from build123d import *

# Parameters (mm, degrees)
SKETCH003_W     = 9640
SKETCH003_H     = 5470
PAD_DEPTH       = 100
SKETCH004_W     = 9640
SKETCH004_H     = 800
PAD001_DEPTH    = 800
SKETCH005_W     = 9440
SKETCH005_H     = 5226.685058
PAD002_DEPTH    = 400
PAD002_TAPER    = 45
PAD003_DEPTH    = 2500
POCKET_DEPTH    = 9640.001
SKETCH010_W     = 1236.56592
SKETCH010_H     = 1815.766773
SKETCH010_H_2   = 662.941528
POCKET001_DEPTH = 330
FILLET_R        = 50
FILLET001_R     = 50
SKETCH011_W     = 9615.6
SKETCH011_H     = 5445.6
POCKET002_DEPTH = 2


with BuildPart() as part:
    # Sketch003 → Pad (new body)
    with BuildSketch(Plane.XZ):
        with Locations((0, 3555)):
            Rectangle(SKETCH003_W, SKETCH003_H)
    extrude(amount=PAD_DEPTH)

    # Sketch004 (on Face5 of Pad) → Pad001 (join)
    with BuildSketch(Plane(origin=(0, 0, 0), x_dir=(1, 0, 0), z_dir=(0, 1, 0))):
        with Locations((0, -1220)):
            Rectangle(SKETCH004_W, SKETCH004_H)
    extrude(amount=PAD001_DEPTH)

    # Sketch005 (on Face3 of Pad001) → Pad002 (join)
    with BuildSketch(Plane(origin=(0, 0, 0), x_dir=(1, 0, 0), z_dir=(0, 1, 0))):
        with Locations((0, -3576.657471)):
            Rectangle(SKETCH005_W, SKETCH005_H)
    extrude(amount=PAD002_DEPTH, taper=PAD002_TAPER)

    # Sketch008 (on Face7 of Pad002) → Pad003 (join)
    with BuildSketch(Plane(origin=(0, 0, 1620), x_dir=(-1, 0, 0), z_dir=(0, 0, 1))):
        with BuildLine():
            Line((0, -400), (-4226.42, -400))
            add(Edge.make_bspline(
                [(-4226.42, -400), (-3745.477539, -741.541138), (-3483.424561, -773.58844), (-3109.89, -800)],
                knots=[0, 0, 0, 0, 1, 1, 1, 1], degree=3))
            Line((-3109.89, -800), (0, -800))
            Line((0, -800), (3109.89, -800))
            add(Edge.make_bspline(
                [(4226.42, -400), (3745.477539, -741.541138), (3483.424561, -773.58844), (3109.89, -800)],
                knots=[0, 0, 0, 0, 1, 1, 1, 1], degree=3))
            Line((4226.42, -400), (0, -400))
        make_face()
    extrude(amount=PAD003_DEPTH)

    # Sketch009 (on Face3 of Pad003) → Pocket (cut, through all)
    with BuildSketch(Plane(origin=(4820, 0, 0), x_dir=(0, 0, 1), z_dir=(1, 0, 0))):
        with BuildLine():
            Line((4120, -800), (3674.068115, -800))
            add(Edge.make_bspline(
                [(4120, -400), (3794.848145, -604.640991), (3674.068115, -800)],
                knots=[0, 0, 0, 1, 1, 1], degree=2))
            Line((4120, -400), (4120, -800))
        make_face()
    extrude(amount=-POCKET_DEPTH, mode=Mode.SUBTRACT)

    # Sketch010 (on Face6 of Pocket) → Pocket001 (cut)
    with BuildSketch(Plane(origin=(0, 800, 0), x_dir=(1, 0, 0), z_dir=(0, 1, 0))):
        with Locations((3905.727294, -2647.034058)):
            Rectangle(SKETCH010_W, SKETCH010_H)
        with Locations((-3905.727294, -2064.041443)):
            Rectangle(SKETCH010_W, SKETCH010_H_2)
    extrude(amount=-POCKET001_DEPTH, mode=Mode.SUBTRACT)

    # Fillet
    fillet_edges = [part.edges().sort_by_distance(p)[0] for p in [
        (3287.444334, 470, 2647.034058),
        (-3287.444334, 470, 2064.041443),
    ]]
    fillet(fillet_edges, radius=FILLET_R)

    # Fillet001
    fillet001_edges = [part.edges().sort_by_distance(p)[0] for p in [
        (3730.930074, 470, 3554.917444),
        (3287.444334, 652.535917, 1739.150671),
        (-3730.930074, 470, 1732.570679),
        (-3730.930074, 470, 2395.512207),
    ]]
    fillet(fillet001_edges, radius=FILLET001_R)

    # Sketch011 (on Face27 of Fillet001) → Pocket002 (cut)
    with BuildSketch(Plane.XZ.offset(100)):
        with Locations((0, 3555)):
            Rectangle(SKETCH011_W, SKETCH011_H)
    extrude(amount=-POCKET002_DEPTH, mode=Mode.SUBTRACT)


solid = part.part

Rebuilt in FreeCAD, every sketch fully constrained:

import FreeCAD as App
import Part
import Sketcher
from FreeCAD import Vector


def edges_at(feature, points):
    """Names of the edges that pass closest to the given points."""
    edges = feature.Shape.Edges
    near = lambda p: min(range(len(edges)), key=lambda i: edges[i].distToShape(Part.Vertex(*p))[0])
    return sorted({f"Edge{near(p) + 1}" for p in points})

doc = App.newDocument("Part")
body = doc.addObject("PartDesign::Body", "Body")

# Sketch on XZ plane
sketch1 = body.newObject("Sketcher::SketchObject", "Sketch")
sketch1.AttachmentSupport = (doc.getObject("XZ_Plane"), [""])
sketch1.MapMode = "FlatFace"
sketch1.addGeometry([
    Part.LineSegment(Vector(-4820, 6290, 0), Vector(-4820, 820, 0)),
    Part.LineSegment(Vector(-4820, 820, 0), Vector(4820, 820, 0)),
    Part.LineSegment(Vector(4820, 820, 0), Vector(4820, 6290, 0)),
    Part.LineSegment(Vector(4820, 6290, 0), Vector(-4820, 6290, 0)),
], False)
sketch1.addConstraint([
    Sketcher.Constraint("Coincident", 0, 2, 1, 1),
    Sketcher.Constraint("Coincident", 1, 2, 2, 1),
    Sketcher.Constraint("Coincident", 2, 2, 3, 1),
    Sketcher.Constraint("Coincident", 3, 2, 0, 1),
    Sketcher.Constraint("Vertical", 0),
    Sketcher.Constraint("Horizontal", 1),
    Sketcher.Constraint("Vertical", 2),
    Sketcher.Constraint("Horizontal", 3),
    Sketcher.Constraint("DistanceX", 1, 1, 1, 2, 9640.0),
    Sketcher.Constraint("DistanceY", 0, 2, 0, 1, 5470.0),
    Sketcher.Constraint("DistanceX", 0, 2, -1, 1, 4820.0),
    Sketcher.Constraint("DistanceY", -1, 1, 0, 2, 820.0),
])
pad1 = body.newObject("PartDesign::Pad", "Pad")
pad1.Profile = sketch1
pad1.Length = 100

# Sketch on XZ plane
sketch2 = body.newObject("Sketcher::SketchObject", "Sketch001")
sketch2.AttachmentSupport = (doc.getObject("XZ_Plane"), [""])
sketch2.MapMode = "FlatFace"
sketch2.addGeometry([
    Part.LineSegment(Vector(-4820, 820, 0), Vector(-4820, 1620, 0)),
    Part.LineSegment(Vector(-4820, 1620, 0), Vector(4820, 1620, 0)),
    Part.LineSegment(Vector(4820, 1620, 0), Vector(4820, 820, 0)),
    Part.LineSegment(Vector(4820, 820, 0), Vector(-4820, 820, 0)),
], False)
sketch2.addConstraint([
    Sketcher.Constraint("Coincident", 0, 2, 1, 1),
    Sketcher.Constraint("Coincident", 1, 2, 2, 1),
    Sketcher.Constraint("Coincident", 2, 2, 3, 1),
    Sketcher.Constraint("Coincident", 3, 2, 0, 1),
    Sketcher.Constraint("Vertical", 0),
    Sketcher.Constraint("Horizontal", 1),
    Sketcher.Constraint("Vertical", 2),
    Sketcher.Constraint("Horizontal", 3),
    Sketcher.Constraint("DistanceX", 1, 1, 1, 2, 9640.0),
    Sketcher.Constraint("DistanceY", 0, 1, 0, 2, 800.0),
    Sketcher.Constraint("DistanceX", 0, 2, -1, 1, 4820.0),
    Sketcher.Constraint("DistanceY", -1, 1, 0, 2, 1620.0),
])
pad2 = body.newObject("PartDesign::Pad", "Pad001")
pad2.Profile = sketch2
pad2.Length = 800
pad2.Reversed = True

# Sketch on XZ plane
sketch3 = body.newObject("Sketcher::SketchObject", "Sketch002")
sketch3.AttachmentSupport = (doc.getObject("XZ_Plane"), [""])
sketch3.MapMode = "FlatFace"
sketch3.addGeometry([
    Part.LineSegment(Vector(-4720, 963, 0), Vector(-4720, 6190, 0)),
    Part.LineSegment(Vector(-4720, 6190, 0), Vector(4720, 6190, 0)),
    Part.LineSegment(Vector(4720, 6190, 0), Vector(4720, 963, 0)),
    Part.LineSegment(Vector(4720, 963, 0), Vector(-4720, 963, 0)),
], False)
sketch3.addConstraint([
    Sketcher.Constraint("Coincident", 0, 2, 1, 1),
    Sketcher.Constraint("Coincident", 1, 2, 2, 1),
    Sketcher.Constraint("Coincident", 2, 2, 3, 1),
    Sketcher.Constraint("Coincident", 3, 2, 0, 1),
    Sketcher.Constraint("Vertical", 0),
    Sketcher.Constraint("Horizontal", 1),
    Sketcher.Constraint("Vertical", 2),
    Sketcher.Constraint("Horizontal", 3),
    Sketcher.Constraint("DistanceX", 1, 1, 1, 2, 9440.0),
    Sketcher.Constraint("DistanceX", 0, 2, -1, 1, 4720.0),
    Sketcher.Constraint("DistanceY", -1, 1, 0, 2, 6190.0),
    Sketcher.Constraint("DistanceY", 0, 1, 0, 2, 5226.685058),
])
pad3 = body.newObject("PartDesign::Pad", "Pad002")
pad3.Profile = sketch3
pad3.Length = 400
pad3.Reversed = True
pad3.TaperAngle = -45

# Sketch on XY plane
sketch4 = body.newObject("Sketcher::SketchObject", "Sketch003")
sketch4.AttachmentSupport = (doc.getObject("XY_Plane"), [""])
sketch4.MapMode = "FlatFace"
sketch4.AttachmentOffset = App.Placement(Vector(0, 0, 1620), App.Rotation())
sketch4.addGeometry([
    Part.BSplineCurve([Vector(4226.42, 400, 0), Vector(3745.477539, 741.541138, 0), Vector(3483.424561, 773.58844, 0), Vector(3109.89, 800, 0)], [4, 4], [0, 1], False, 3, [1, 1, 1, 1], False),
    Part.LineSegment(Vector(3109.89, 800, 0), Vector(-3109.89, 800, 0)),
    Part.BSplineCurve([Vector(-4226.42, 400, 0), Vector(-3745.477539, 741.541138, 0), Vector(-3483.424561, 773.58844, 0), Vector(-3109.89, 800, 0)], [4, 4], [0, 1], False, 3, [1, 1, 1, 1], False),
    Part.LineSegment(Vector(-4226.42, 400, 0), Vector(4226.42, 400, 0)),
], False)
sketch4.addConstraint([
    Sketcher.Constraint("Block", 0),
    Sketcher.Constraint("Block", 2),
    Sketcher.Constraint("Coincident", 0, 2, 1, 1),
    Sketcher.Constraint("Coincident", 1, 2, 2, 2),
    Sketcher.Constraint("Coincident", 2, 1, 3, 1),
    Sketcher.Constraint("Coincident", 3, 2, 0, 1),
])
pad4 = body.newObject("PartDesign::Pad", "Pad003")
pad4.Profile = sketch4
pad4.Length = 2500

# Sketch on YZ plane
sketch5 = body.newObject("Sketcher::SketchObject", "Sketch004")
sketch5.AttachmentSupport = (doc.getObject("YZ_Plane"), [""])
sketch5.MapMode = "FlatFace"
sketch5.AttachmentOffset = App.Placement(Vector(0, 0, 4820), App.Rotation())
sketch5.addGeometry([
    Part.LineSegment(Vector(800, 3674.068115, 0), Vector(800, 4120, 0)),
    Part.LineSegment(Vector(800, 4120, 0), Vector(400, 4120, 0)),
    Part.BSplineCurve([Vector(400, 4120, 0), Vector(604.640991, 3794.848145, 0), Vector(800, 3674.068115, 0)], [3, 3], [0, 1], False, 2, [1, 1, 1], False),
], False)
sketch5.addConstraint([
    Sketcher.Constraint("Block", 2),
    Sketcher.Constraint("Coincident", 0, 2, 1, 1),
    Sketcher.Constraint("Coincident", 1, 2, 2, 1),
    Sketcher.Constraint("Coincident", 2, 2, 0, 1),
    Sketcher.Constraint("Vertical", 0),
    Sketcher.Constraint("Horizontal", 1),
])
pocket1 = body.newObject("PartDesign::Pocket", "Pocket")
pocket1.Profile = sketch5
pocket1.Type = "ThroughAll"

# Sketch on XZ plane
sketch6 = body.newObject("Sketcher::SketchObject", "Sketch005")
sketch6.AttachmentSupport = (doc.getObject("XZ_Plane"), [""])
sketch6.MapMode = "FlatFace"
sketch6.AttachmentOffset = App.Placement(Vector(0, 0, -800), App.Rotation())
sketch6.addGeometry([
    Part.LineSegment(Vector(3287, 1739, 0), Vector(3287, 3555, 0)),  # 0
    Part.LineSegment(Vector(3287, 3555, 0), Vector(4524, 3555, 0)),  # 1
    Part.LineSegment(Vector(4524, 3555, 0), Vector(4524, 1739, 0)),  # 2
    Part.LineSegment(Vector(4524, 1739, 0), Vector(3287, 1739, 0)),  # 3
    Part.LineSegment(Vector(-4524, 1733, 0), Vector(-4524, 2396, 0)),  # 4
    Part.LineSegment(Vector(-4524, 2396, 0), Vector(-3287, 2396, 0)),  # 5
    Part.LineSegment(Vector(-3287, 2396, 0), Vector(-3287, 1733, 0)),  # 6
    Part.LineSegment(Vector(-3287, 1733, 0), Vector(-4524, 1733, 0)),  # 7
], False)
sketch6.addConstraint([
    Sketcher.Constraint("Coincident", 0, 2, 1, 1),
    Sketcher.Constraint("Coincident", 1, 2, 2, 1),
    Sketcher.Constraint("Coincident", 2, 2, 3, 1),
    Sketcher.Constraint("Coincident", 3, 2, 0, 1),
    Sketcher.Constraint("Coincident", 4, 2, 5, 1),
    Sketcher.Constraint("Coincident", 5, 2, 6, 1),
    Sketcher.Constraint("Coincident", 6, 2, 7, 1),
    Sketcher.Constraint("Coincident", 7, 2, 4, 1),
    Sketcher.Constraint("Vertical", 0),
    Sketcher.Constraint("Horizontal", 1),
    Sketcher.Constraint("Vertical", 2),
    Sketcher.Constraint("Horizontal", 3),
    Sketcher.Constraint("Vertical", 4),
    Sketcher.Constraint("Horizontal", 5),
    Sketcher.Constraint("Vertical", 6),
    Sketcher.Constraint("Horizontal", 7),
    Sketcher.Constraint("Equal", 3, 5),
    Sketcher.Constraint("DistanceX", 1, 1, 1, 2, 1236.56592),
    Sketcher.Constraint("DistanceY", 4, 1, 4, 2, 662.941528),
    Sketcher.Constraint("DistanceY", 0, 1, 0, 2, 1815.766773),
    Sketcher.Constraint("DistanceY", -1, 1, 2, 2, 1739.150672),
    Sketcher.Constraint("DistanceY", -1, 1, 6, 2, 1732.570679),
    Sketcher.Constraint("DistanceX", -1, 1, 0, 2, 3287.444334),
    Sketcher.Constraint("DistanceX", 4, 2, -1, 1, 4524.010254),
])
pocket2 = body.newObject("PartDesign::Pocket", "Pocket001")
pocket2.Profile = sketch6
pocket2.Length = 330
pocket2.Reversed = True
doc.recompute()

fillet = body.newObject("PartDesign::Fillet", "Fillet")
fillet.Base = (pocket2, edges_at(pocket2, [(3287.444, 470, 2647.034), (-3287.444, 470, 2064.041)]))
fillet.Radius = 50
doc.recompute()

fillet2 = body.newObject("PartDesign::Fillet", "Fillet001")
fillet2.Base = (fillet, edges_at(fillet, [
    (3730.93, 470, 3554.917),
    (3287.444, 652.536, 1739.151),
    (-3730.93, 470, 1732.571),
    (-3730.93, 470, 2395.512),
]))
fillet2.Radius = 50

# Sketch on XZ plane
sketch7 = body.newObject("Sketcher::SketchObject", "Sketch006")
sketch7.AttachmentSupport = (doc.getObject("XZ_Plane"), [""])
sketch7.MapMode = "FlatFace"
sketch7.AttachmentOffset = App.Placement(Vector(0, 0, 100), App.Rotation())
sketch7.addGeometry([
    Part.LineSegment(Vector(-4808, 6278, 0), Vector(-4808, 832, 0)),
    Part.LineSegment(Vector(-4808, 832, 0), Vector(4808, 832, 0)),
    Part.LineSegment(Vector(4808, 832, 0), Vector(4808, 6278, 0)),
    Part.LineSegment(Vector(4808, 6278, 0), Vector(-4808, 6278, 0)),
], False)
sketch7.addConstraint([
    Sketcher.Constraint("Coincident", 0, 2, 1, 1),
    Sketcher.Constraint("Coincident", 1, 2, 2, 1),
    Sketcher.Constraint("Coincident", 2, 2, 3, 1),
    Sketcher.Constraint("Coincident", 3, 2, 0, 1),
    Sketcher.Constraint("Vertical", 0),
    Sketcher.Constraint("Horizontal", 1),
    Sketcher.Constraint("Vertical", 2),
    Sketcher.Constraint("Horizontal", 3),
    Sketcher.Constraint("DistanceX", 1, 1, 1, 2, 9615.6),
    Sketcher.Constraint("DistanceY", 0, 2, 0, 1, 5445.6),
    Sketcher.Constraint("DistanceX", 0, 2, -1, 1, 4807.8),
    Sketcher.Constraint("DistanceY", -1, 1, 0, 2, 832.2),
])
pocket3 = body.newObject("PartDesign::Pocket", "Pocket002")
pocket3.Profile = sketch7
pocket3.Length = 2

doc.recompute()
